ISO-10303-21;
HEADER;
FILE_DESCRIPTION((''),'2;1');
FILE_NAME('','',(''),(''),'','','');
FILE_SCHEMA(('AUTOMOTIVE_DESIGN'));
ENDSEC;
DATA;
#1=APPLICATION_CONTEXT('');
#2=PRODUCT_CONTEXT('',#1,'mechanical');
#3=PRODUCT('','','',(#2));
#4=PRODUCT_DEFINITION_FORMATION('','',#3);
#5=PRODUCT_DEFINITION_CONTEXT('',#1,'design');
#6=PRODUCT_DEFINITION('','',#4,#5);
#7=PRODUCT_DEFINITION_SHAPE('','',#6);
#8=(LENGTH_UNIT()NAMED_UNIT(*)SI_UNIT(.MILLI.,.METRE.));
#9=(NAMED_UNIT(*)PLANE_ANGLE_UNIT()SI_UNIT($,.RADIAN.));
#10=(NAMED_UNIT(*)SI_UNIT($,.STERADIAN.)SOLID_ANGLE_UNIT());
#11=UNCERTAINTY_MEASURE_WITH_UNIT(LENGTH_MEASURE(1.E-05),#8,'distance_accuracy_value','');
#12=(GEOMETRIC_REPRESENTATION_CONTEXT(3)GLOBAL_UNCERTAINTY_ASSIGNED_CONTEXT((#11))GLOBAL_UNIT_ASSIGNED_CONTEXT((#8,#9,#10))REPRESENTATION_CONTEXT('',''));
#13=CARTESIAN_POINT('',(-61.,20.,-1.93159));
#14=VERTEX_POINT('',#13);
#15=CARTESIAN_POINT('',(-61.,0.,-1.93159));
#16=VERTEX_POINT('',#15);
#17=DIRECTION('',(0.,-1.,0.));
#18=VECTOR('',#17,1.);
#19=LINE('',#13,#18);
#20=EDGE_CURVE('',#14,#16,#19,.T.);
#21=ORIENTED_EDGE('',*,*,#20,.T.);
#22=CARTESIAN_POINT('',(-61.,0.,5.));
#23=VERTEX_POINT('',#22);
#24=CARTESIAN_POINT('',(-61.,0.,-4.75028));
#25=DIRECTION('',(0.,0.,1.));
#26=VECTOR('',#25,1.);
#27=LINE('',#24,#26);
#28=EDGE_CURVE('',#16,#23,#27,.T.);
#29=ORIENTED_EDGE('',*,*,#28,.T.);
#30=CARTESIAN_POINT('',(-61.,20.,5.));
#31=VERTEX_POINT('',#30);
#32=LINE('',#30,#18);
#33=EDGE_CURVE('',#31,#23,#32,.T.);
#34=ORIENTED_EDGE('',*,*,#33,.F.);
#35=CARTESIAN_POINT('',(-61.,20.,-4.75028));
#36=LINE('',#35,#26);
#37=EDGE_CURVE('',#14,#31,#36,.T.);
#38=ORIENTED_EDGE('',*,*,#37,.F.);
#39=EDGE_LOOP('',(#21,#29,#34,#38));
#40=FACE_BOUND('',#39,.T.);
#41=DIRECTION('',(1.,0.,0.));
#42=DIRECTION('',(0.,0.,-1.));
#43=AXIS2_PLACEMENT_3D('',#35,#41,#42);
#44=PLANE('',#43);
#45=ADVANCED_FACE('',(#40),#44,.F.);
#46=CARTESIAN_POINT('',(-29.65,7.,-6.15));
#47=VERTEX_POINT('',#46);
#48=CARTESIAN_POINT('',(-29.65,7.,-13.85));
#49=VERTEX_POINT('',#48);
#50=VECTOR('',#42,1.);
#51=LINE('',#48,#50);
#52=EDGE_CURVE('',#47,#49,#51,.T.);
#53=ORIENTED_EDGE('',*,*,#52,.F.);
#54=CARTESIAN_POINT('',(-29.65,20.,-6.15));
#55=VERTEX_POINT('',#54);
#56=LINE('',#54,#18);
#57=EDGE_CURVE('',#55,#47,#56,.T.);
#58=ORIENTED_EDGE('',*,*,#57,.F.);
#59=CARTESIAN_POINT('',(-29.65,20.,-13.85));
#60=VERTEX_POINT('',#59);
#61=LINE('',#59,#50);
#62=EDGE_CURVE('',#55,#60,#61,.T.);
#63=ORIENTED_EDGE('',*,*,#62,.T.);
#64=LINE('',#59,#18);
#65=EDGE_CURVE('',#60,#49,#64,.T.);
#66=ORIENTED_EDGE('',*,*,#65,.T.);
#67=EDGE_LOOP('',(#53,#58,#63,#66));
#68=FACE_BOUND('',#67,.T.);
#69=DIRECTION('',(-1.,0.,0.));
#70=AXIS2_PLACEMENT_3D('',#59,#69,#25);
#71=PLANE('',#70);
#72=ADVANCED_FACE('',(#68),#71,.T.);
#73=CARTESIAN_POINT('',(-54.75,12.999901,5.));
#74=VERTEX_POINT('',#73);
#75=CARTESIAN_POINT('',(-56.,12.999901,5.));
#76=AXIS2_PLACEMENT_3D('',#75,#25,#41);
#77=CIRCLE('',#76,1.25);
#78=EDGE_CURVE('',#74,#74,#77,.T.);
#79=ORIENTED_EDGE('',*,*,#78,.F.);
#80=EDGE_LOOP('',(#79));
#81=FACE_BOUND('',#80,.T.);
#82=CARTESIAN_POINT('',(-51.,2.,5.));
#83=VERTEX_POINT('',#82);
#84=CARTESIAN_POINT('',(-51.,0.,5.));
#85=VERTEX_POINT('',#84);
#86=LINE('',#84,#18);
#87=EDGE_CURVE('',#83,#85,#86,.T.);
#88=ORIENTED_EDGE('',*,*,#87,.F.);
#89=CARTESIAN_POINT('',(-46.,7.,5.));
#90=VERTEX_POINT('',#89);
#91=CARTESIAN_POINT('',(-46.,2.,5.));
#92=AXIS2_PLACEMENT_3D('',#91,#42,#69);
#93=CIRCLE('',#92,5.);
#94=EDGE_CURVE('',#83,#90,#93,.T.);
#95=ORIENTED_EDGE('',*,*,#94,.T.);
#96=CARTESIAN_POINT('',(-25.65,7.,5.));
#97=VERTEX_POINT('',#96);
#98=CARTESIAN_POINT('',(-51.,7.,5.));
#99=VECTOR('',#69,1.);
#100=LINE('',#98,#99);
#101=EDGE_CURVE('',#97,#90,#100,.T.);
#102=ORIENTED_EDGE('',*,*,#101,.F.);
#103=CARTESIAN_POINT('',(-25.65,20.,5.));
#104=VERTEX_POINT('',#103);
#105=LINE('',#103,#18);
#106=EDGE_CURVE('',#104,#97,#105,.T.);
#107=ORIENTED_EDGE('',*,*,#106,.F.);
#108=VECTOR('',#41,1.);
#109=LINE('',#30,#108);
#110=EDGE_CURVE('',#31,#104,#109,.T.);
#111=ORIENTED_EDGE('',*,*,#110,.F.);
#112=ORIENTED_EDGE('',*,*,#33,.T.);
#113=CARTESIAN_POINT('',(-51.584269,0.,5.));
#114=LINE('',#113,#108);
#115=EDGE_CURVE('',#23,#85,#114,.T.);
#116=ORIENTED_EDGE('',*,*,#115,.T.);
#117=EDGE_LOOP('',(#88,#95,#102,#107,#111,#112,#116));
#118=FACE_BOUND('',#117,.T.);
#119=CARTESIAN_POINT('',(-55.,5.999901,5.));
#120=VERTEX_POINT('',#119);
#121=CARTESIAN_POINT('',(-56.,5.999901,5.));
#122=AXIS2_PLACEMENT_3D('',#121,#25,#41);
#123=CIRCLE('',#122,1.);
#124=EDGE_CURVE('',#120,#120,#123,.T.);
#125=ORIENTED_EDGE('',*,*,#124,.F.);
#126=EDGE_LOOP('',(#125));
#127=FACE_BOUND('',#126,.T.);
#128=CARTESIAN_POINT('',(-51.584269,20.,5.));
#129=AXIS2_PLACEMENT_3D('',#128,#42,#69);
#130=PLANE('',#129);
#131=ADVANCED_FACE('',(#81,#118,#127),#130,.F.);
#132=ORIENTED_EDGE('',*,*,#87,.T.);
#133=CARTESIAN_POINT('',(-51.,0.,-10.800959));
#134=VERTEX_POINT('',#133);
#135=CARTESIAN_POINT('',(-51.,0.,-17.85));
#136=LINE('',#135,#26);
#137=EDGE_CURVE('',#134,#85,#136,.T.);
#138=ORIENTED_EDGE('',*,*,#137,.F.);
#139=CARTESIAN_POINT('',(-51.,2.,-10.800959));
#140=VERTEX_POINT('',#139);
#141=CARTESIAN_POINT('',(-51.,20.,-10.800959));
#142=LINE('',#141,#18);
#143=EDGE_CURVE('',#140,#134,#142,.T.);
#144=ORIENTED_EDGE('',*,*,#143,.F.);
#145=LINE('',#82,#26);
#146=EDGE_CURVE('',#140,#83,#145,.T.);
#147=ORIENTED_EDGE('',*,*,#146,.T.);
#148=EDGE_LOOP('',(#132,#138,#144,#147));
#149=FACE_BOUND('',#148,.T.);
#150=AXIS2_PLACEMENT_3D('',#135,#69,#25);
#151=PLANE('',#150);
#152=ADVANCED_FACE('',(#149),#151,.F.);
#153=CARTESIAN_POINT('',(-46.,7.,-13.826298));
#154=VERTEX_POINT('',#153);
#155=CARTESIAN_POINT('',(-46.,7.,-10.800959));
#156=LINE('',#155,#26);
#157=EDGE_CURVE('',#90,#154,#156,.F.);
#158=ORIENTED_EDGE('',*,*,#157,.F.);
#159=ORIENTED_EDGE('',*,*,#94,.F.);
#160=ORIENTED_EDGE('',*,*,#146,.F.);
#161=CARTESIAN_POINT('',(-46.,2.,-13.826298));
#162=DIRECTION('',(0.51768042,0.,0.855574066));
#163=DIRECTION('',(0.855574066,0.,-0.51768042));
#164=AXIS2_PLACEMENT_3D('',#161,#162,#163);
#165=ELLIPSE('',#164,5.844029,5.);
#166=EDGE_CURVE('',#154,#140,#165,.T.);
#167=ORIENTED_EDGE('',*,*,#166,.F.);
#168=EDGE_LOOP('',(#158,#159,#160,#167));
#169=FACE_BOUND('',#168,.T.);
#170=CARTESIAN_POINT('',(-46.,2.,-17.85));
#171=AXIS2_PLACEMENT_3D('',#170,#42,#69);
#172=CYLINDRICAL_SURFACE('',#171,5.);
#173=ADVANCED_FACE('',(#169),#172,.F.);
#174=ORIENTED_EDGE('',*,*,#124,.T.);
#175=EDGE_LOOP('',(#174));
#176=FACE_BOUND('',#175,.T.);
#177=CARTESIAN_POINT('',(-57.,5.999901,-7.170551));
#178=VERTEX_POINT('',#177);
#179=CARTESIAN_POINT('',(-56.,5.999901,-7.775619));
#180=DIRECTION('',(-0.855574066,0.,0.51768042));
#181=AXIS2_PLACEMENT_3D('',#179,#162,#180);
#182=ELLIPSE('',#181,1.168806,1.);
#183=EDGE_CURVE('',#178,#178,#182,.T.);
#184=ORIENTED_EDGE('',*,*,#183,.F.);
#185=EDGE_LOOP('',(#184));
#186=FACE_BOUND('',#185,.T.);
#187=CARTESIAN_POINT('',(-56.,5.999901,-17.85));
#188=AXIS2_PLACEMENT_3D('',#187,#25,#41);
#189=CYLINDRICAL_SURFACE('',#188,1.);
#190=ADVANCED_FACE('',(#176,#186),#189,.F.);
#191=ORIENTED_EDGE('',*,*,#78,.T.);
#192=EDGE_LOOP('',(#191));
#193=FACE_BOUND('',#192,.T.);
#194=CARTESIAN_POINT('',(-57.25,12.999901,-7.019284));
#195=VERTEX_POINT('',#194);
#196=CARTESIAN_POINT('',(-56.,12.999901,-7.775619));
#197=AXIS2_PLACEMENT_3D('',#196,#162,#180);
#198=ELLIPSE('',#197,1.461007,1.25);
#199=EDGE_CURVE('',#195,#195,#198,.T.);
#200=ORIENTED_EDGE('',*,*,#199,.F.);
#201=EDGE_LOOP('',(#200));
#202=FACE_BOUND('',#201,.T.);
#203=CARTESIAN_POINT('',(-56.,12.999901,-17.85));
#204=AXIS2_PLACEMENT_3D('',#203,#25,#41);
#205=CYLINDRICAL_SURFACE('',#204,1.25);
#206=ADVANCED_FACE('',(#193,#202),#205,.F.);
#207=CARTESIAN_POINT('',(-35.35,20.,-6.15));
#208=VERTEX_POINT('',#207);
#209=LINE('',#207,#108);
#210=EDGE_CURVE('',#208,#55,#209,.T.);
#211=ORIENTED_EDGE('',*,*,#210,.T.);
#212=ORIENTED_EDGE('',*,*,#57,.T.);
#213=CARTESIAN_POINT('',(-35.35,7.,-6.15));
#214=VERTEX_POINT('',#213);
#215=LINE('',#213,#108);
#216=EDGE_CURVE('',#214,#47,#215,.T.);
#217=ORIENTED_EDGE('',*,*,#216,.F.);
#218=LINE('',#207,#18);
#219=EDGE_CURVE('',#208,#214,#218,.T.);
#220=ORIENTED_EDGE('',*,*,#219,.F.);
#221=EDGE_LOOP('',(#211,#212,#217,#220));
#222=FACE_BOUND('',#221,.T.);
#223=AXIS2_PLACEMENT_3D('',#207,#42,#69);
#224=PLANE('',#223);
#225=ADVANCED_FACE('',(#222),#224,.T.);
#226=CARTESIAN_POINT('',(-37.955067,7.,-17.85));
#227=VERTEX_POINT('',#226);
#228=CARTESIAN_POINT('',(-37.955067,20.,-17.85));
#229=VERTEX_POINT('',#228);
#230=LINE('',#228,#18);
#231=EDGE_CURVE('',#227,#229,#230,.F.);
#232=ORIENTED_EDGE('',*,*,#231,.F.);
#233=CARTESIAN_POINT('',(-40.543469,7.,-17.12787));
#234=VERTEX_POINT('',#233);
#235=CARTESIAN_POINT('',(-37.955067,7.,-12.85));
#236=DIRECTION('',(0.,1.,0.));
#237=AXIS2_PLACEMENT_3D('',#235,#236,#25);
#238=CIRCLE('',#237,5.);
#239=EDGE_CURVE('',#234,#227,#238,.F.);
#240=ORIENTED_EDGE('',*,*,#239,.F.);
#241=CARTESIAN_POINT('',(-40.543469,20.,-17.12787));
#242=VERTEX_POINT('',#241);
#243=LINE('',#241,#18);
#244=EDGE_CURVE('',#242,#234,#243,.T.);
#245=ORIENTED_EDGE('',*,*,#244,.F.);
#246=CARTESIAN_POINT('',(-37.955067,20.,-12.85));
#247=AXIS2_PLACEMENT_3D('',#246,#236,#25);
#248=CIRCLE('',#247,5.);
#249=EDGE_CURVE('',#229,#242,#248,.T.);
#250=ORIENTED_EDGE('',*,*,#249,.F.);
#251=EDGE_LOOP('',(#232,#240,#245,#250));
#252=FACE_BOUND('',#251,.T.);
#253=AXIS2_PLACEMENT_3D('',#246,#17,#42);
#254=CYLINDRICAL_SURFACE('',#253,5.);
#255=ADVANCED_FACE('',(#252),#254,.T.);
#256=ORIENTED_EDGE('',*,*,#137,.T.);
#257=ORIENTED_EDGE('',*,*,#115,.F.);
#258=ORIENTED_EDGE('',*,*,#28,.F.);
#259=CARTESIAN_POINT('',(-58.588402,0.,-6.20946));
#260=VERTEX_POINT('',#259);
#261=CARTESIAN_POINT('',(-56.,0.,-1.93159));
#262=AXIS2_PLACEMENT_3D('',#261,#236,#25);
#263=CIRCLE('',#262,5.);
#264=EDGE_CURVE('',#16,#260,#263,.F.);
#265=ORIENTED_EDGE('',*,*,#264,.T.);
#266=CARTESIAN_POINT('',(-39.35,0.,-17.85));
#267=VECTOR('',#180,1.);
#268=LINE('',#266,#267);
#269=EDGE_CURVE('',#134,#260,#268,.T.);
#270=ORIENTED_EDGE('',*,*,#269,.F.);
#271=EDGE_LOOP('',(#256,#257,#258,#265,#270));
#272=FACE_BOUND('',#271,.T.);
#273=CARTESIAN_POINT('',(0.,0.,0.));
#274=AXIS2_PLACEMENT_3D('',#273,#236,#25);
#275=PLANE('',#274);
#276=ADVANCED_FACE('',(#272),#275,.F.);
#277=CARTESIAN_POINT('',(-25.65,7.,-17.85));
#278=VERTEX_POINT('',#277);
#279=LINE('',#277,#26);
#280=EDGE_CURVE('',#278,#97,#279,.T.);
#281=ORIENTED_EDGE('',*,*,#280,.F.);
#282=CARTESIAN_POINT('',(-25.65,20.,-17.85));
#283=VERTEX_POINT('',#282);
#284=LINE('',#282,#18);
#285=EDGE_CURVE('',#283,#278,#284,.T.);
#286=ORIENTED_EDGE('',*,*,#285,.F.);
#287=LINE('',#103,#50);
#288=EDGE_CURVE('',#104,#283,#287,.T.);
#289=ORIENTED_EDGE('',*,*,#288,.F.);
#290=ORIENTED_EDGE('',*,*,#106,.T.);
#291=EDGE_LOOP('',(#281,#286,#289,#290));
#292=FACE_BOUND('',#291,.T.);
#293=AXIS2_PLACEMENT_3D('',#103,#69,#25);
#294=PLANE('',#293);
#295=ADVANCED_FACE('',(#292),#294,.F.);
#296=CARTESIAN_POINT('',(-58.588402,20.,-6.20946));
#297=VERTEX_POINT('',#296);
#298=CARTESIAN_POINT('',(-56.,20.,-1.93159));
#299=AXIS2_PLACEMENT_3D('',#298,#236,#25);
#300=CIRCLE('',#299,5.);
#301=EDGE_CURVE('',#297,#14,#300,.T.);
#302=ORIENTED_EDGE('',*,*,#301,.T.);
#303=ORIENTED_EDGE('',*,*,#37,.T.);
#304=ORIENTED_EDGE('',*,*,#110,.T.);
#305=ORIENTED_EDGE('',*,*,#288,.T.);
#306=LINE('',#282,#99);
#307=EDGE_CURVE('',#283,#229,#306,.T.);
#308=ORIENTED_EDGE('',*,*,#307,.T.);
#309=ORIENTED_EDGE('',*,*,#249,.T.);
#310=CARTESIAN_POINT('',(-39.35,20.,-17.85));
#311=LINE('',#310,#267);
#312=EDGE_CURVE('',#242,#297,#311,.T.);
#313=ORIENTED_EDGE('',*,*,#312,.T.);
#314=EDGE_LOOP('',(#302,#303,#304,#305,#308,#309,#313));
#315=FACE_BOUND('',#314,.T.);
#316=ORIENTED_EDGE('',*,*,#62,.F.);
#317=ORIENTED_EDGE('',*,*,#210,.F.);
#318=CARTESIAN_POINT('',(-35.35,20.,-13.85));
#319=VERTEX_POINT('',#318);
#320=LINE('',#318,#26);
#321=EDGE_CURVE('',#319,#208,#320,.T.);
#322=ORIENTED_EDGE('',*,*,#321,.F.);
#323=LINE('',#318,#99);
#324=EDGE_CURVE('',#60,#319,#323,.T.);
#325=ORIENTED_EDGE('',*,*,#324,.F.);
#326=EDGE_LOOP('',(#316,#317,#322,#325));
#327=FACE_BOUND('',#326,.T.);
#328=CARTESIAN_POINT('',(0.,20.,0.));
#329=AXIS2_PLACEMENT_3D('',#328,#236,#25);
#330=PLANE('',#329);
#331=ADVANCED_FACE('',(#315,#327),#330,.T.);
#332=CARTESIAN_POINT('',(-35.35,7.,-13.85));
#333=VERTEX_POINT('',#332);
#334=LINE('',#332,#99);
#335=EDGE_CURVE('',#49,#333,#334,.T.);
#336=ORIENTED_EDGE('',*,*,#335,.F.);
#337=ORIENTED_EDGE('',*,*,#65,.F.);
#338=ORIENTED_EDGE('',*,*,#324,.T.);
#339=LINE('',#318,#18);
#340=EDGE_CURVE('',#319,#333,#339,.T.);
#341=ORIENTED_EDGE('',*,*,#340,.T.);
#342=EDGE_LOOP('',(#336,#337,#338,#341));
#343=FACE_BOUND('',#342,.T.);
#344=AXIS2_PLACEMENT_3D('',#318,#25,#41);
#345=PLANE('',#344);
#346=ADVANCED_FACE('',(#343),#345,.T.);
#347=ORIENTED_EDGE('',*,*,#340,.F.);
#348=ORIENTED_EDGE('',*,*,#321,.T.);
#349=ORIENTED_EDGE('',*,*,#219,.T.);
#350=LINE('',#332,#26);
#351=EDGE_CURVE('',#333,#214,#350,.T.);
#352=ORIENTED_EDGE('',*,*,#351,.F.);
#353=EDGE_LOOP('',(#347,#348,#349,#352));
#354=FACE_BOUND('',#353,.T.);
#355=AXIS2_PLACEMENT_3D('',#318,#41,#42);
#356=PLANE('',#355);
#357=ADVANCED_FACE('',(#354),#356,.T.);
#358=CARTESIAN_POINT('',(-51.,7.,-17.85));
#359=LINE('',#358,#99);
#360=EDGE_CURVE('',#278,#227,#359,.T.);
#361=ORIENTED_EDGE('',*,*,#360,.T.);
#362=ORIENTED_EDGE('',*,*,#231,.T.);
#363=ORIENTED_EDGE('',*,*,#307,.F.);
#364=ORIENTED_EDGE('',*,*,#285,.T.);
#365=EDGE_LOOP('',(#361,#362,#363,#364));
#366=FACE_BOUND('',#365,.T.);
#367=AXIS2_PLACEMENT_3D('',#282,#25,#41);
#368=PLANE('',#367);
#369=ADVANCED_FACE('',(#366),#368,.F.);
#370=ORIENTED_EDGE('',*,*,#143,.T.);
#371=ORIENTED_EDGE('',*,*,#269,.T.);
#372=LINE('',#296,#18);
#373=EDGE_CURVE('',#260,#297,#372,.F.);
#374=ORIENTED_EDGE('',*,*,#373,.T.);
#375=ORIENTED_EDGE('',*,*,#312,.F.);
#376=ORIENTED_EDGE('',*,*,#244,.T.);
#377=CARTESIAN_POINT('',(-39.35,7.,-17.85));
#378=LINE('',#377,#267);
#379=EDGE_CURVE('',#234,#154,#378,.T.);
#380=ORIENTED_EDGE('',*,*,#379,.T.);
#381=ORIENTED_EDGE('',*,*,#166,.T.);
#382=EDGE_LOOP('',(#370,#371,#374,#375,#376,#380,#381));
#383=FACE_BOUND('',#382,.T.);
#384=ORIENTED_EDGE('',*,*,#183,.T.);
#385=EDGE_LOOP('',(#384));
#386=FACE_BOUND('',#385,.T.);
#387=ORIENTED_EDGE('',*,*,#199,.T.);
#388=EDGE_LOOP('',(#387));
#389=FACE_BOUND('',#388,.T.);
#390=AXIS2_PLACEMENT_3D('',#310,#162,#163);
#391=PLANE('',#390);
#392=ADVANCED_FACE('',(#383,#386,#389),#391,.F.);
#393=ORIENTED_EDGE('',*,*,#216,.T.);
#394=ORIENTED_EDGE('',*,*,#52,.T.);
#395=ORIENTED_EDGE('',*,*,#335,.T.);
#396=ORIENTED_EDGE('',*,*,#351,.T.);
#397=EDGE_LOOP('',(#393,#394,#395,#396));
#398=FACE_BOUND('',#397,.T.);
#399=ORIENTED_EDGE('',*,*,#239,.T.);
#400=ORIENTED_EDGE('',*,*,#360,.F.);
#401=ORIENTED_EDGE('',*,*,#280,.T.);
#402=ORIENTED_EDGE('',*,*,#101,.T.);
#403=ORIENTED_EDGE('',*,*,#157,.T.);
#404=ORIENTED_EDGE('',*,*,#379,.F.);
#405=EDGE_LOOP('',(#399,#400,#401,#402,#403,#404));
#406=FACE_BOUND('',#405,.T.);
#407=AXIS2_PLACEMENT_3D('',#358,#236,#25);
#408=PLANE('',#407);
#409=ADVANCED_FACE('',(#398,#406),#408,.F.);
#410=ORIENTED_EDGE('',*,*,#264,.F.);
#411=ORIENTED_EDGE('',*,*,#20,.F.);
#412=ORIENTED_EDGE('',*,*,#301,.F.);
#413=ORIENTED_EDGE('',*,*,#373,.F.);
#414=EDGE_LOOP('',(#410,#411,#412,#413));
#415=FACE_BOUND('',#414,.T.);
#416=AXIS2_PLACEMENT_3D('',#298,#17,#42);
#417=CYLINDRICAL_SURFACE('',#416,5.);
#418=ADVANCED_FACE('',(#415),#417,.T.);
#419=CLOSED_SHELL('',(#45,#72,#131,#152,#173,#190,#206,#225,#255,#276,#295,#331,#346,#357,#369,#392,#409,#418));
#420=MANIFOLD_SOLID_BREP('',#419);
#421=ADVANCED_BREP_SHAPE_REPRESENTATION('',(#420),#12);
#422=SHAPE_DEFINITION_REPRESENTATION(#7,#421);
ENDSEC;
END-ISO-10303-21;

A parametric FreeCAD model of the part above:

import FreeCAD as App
import Part
import Sketcher
Q = App.Units.Quantity


def edges_at(feature, points):
    """Names of the edges that pass closest to the given points."""
    edges = feature.Shape.Edges
    near = lambda p: min(range(len(edges)), key=lambda i: edges[i].distToShape(Part.Vertex(*p))[0])
    return sorted({f"Edge{near(p) + 1}" for p in points})

doc = App.newDocument("Part")
params = doc.addObject("Spreadsheet::Sheet", "Params")
for row, (alias, value) in enumerate([
    ("sketch1_width", "13.7 mm"),
    ("sketch1_width2", "5.7 mm"),
    ("sketch1_height", "7.7 mm"),
    ("sketch1_width3", "35.35 mm"),
    ("sketch1_height2", "22.85 mm"),
    ("pad1_length", "20 mm"),
    ("sketch2_diameter", "2 mm"),
    ("sketch2_diameter2", "2.5 mm"),
    ("sketch2_height", "7 mm"),
    ("sketch2_width", "25.35 mm"),
    ("fillet_radius", "5 mm"),
    ("fillet2_radius", "5 mm"),
], start=1):
    params.set(f"A{row}", alias)
    params.set(f"B{row}", "=" + value)
    params.setAlias(f"B{row}", alias)

body = doc.addObject("PartDesign::Body", "Body")

# Sketch on XZ plane
sketch1 = body.newObject("Sketcher::SketchObject", "Sketch")
sketch1.AttachmentSupport = (doc.getObject("XZ_Plane"), [""])
sketch1.MapMode = "FlatFace"
sketch1.addGeometry([
    Part.LineSegment(App.Vector(-61, 5, 0), App.Vector(-26, 5, 0)),  # 0
    Part.LineSegment(App.Vector(-26, 5, 0), App.Vector(-26, -18, 0)),  # 1
    Part.LineSegment(App.Vector(-26, -18, 0), App.Vector(-39, -18, 0)),  # 2
    Part.LineSegment(App.Vector(-39, -18, 0), App.Vector(-61, -5, 0)),  # 3
    Part.LineSegment(App.Vector(-61, -5, 0), App.Vector(-61, 5, 0)),  # 4
    Part.LineSegment(App.Vector(-30, -6, 0), App.Vector(-35, -6, 0)),  # 5
    Part.LineSegment(App.Vector(-35, -6, 0), App.Vector(-35, -14, 0)),  # 6
    Part.LineSegment(App.Vector(-35, -14, 0), App.Vector(-30, -14, 0)),  # 7
    Part.LineSegment(App.Vector(-30, -14, 0), App.Vector(-30, -6, 0)),  # 8
], False)
sketch1.addConstraint([
    Sketcher.Constraint("Coincident", 0, 2, 1, 1),
    Sketcher.Constraint("Coincident", 1, 2, 2, 1),
    Sketcher.Constraint("Coincident", 2, 2, 3, 1),
    Sketcher.Constraint("Coincident", 3, 2, 4, 1),
    Sketcher.Constraint("Coincident", 4, 2, 0, 1),
    Sketcher.Constraint("Coincident", 5, 2, 6, 1),
    Sketcher.Constraint("Coincident", 6, 2, 7, 1),
    Sketcher.Constraint("Coincident", 7, 2, 8, 1),
    Sketcher.Constraint("Coincident", 8, 2, 5, 1),
    Sketcher.Constraint("Horizontal", 0),
    Sketcher.Constraint("Vertical", 1),
    Sketcher.Constraint("Horizontal", 2),
    Sketcher.Constraint("Vertical", 4),
    Sketcher.Constraint("Horizontal", 5),
    Sketcher.Constraint("Vertical", 6),
    Sketcher.Constraint("Horizontal", 7),
    Sketcher.Constraint("Vertical", 8),
    Sketcher.Constraint("DistanceX", 2, 2, 2, 1, Q("13.7 mm")),
    Sketcher.Constraint("DistanceX", 5, 2, 5, 1, Q("5.7 mm")),
    Sketcher.Constraint("DistanceY", 6, 2, 6, 1, Q("7.7 mm")),
    Sketcher.Constraint("DistanceY", -1, 1, 0, 2, Q("5 mm")),
    Sketcher.Constraint("DistanceX", 3, 2, -1, 1, Q("61 mm")),
    Sketcher.Constraint("DistanceX", 2, 2, 5, 2, Q("4 mm")),
    Sketcher.Constraint("DistanceY", 2, 2, 6, 2, Q("4 mm")),
    Sketcher.Constraint("DistanceX", 0, 1, 0, 2, Q("35.35 mm")),
    Sketcher.Constraint("DistanceY", 1, 2, 1, 1, Q("22.85 mm")),
    Sketcher.Constraint("DistanceY", 4, 1, 4, 2, Q("9.75028 mm")),
])
sketch1.setExpression("Constraints[17]", "Params.sketch1_width")
sketch1.setExpression("Constraints[18]", "Params.sketch1_width2")
sketch1.setExpression("Constraints[19]", "Params.sketch1_height")
sketch1.setExpression("Constraints[24]", "Params.sketch1_width3")
sketch1.setExpression("Constraints[25]", "Params.sketch1_height2")
pad1 = body.newObject("PartDesign::Pad", "Pad")
pad1.Profile = sketch1
pad1.setExpression("Length", "Params.pad1_length")
pad1.Reversed = True

# Sketch on XY plane
sketch2 = body.newObject("Sketcher::SketchObject", "Sketch001")
sketch2.AttachmentSupport = (doc.getObject("XY_Plane"), [""])
sketch2.MapMode = "FlatFace"
sketch2.AttachmentOffset = App.Placement(App.Vector(0, 0, 5), App.Rotation())
sketch2.addGeometry([
    Part.Circle(App.Vector(-56, 13, 0), App.Vector(0, 0, 1), 1.2),  # 0
    Part.Circle(App.Vector(-56, 6, 0), App.Vector(0, 0, 1), 1),  # 1
    Part.LineSegment(App.Vector(-51, 7, 0), App.Vector(-51, 0, 0)),  # 2
    Part.LineSegment(App.Vector(-51, 0, 0), App.Vector(-25.6, 0, 0)),  # 3
    Part.LineSegment(App.Vector(-25.6, 0, 0), App.Vector(-25.6, 7, 0)),  # 4
    Part.LineSegment(App.Vector(-25.6, 7, 0), App.Vector(-51, 7, 0)),  # 5
], False)
sketch2.addConstraint([
    Sketcher.Constraint("Coincident", 2, 2, 3, 1),
    Sketcher.Constraint("Coincident", 3, 2, 4, 1),
    Sketcher.Constraint("Coincident", 4, 2, 5, 1),
    Sketcher.Constraint("Coincident", 5, 2, 2, 1),
    Sketcher.Constraint("Vertical", 2),
    Sketcher.Constraint("Horizontal", 3),
    Sketcher.Constraint("Vertical", 4),
    Sketcher.Constraint("Horizontal", 5),
    Sketcher.Constraint("PointOnObject", 2, 2, -1),
    Sketcher.Constraint("Vertical", 0, 3, 1, 3),
    Sketcher.Constraint("Diameter", 1, Q("2 mm")),
    Sketcher.Constraint("Diameter", 0, Q("2.5 mm")),
    Sketcher.Constraint("DistanceY", 2, 2, 2, 1, Q("7 mm")),
    Sketcher.Constraint("DistanceX", 0, 3, -1, 1, Q("56 mm")),
    Sketcher.Constraint("DistanceX", 2, 2, -1, 1, Q("51 mm")),
    Sketcher.Constraint("DistanceY", 1, 3, 0, 3, Q("7 mm")),
    Sketcher.Constraint("DistanceX", 3, 1, 3, 2, Q("25.35 mm")),
    Sketcher.Constraint("DistanceY", -1, 1, 0, 3, Q("12.999901 mm")),
])
sketch2.setExpression("Constraints[10]", "Params.sketch2_diameter")
sketch2.setExpression("Constraints[11]", "Params.sketch2_diameter2")
sketch2.setExpression("Constraints[12]", "Params.sketch2_height")
sketch2.setExpression("Constraints[16]", "Params.sketch2_width")
pocket1 = body.newObject("PartDesign::Pocket", "Pocket")
pocket1.Profile = sketch2
pocket1.Type = "ThroughAll"
doc.recompute()

fillet = body.newObject("PartDesign::Fillet", "Fillet")
fillet.Base = (pocket1, edges_at(pocket1, [(-51, 7, -2.9)]))
fillet.setExpression("Radius", "Params.fillet_radius")
doc.recompute()

fillet2 = body.newObject("PartDesign::Fillet", "Fillet001")
fillet2.Base = (fillet, edges_at(fillet, [(-61, 10, -4.75), (-39.35, 13.5, -17.85)]))
fillet2.setExpression("Radius", "Params.fillet2_radius")

doc.recompute()
